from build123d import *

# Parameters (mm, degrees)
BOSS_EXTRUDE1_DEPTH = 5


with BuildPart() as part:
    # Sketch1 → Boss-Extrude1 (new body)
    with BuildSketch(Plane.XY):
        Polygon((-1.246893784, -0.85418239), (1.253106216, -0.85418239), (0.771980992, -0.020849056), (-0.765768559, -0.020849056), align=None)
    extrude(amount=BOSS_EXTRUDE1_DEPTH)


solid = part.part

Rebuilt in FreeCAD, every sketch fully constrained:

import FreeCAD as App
import Part
import Sketcher
from FreeCAD import Vector
Q = App.Units.Quantity

doc = App.newDocument("Part")
body = doc.addObject("PartDesign::Body", "Body")

# Sketch on XY plane
sketch1 = doc.addObject("Sketcher::SketchObject", "Sketch")
body.addObject(sketch1)
sketch1.AttachmentSupport = (doc.XY_Plane, [""])
sketch1.MapMode = "FlatFace"
sketch1.addGeometry(Part.LineSegment(Vector(-1.2, -0.9, 0), Vector(1.3, -0.9, 0)), False)
sketch1.addGeometry(Part.LineSegment(Vector(1.3, -0.9, 0), Vector(0.8, 0, 0)), False)
sketch1.addGeometry(Part.LineSegment(Vector(0.8, 0, 0), Vector(-0.8, 0, 0)), False)
sketch1.addGeometry(Part.LineSegment(Vector(-0.8, 0, 0), Vector(-1.2, -0.9, 0)), False)
sketch1.addConstraint(Sketcher.Constraint("Coincident", 0, 2, 1, 1))
sketch1.addConstraint(Sketcher.Constraint("Coincident", 1, 2, 2, 1))
sketch1.addConstraint(Sketcher.Constraint("Coincident", 2, 2, 3, 1))
sketch1.addConstraint(Sketcher.Constraint("Coincident", 3, 2, 0, 1))
sketch1.addConstraint(Sketcher.Constraint("Horizontal", 0))
sketch1.addConstraint(Sketcher.Constraint("Horizontal", 2))
sketch1.addConstraint(Sketcher.Constraint("Equal", 1, 3))
sketch1.addConstraint(Sketcher.Constraint("Angle", 1, Q("120 deg")))
sketch1.addConstraint(Sketcher.Constraint("DistanceX", 0, 1, 0, 2, Q("2.5 mm")))
sketch1.addConstraint(Sketcher.Constraint("DistanceX", 2, 2, 2, 1, Q("1.53775 mm")))
sketch1.addConstraint(Sketcher.Constraint("DistanceX", -1, 1, 1, 2, Q("0.771981 mm")))
sketch1.addConstraint(Sketcher.Constraint("DistanceY", 1, 2, -1, 1, Q("0.020849 mm")))
pad1 = doc.addObject("PartDesign::Pad", "Pad")
body.addObject(pad1)
pad1.Profile = sketch1
pad1.Length = 5

doc.recompute()
